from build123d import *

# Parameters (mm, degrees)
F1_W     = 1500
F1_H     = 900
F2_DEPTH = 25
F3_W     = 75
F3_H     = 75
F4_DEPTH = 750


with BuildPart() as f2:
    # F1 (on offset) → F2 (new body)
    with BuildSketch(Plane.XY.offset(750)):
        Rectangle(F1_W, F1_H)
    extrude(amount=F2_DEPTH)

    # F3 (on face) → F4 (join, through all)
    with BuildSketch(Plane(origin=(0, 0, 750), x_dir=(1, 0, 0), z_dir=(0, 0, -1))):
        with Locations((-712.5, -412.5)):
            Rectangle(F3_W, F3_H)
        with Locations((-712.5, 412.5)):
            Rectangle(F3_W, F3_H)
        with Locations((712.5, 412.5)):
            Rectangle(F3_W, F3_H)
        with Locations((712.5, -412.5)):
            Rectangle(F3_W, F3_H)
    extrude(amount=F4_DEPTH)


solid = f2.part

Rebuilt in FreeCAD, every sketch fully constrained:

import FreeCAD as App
import Part
import Sketcher

V = App.Vector


def add_polygon(sketch, points):
    """Adds a closed chain of lines whose ends are joined by coincident constraints."""
    first, n = sketch.GeometryCount, len(points)
    for a, b in zip(points, points[1:] + points[:1]):
        sketch.addGeometry(Part.LineSegment(App.Vector(*a, 0), App.Vector(*b, 0)), False)
    for i in range(n):
        sketch.addConstraint(Sketcher.Constraint("Coincident", first + i, 2, first + (i + 1) % n, 1))

doc = App.newDocument("Part")
body = doc.addObject("PartDesign::Body", "Body")

sketch1 = body.newObject("Sketcher::SketchObject", "Sketch")
sketch1.AttachmentSupport = (doc.getObject("XY_Plane"), [""])
sketch1.MapMode = "FlatFace"
sketch1.AttachmentOffset = App.Placement(V(0, 0, 750), App.Rotation())
add_polygon(sketch1, [(-750, 450), (-750, -450), (750, -450), (750, 450)])
sketch1.addConstraint(Sketcher.Constraint("Vertical", 0))
sketch1.addConstraint(Sketcher.Constraint("Horizontal", 1))
sketch1.addConstraint(Sketcher.Constraint("Vertical", 2))
sketch1.addConstraint(Sketcher.Constraint("Horizontal", 3))
sketch1.addConstraint(Sketcher.Constraint("Symmetric", 0, 2, 2, 2, -1, 1))
sketch1.addConstraint(Sketcher.Constraint("DistanceX", 1, 1, 1, 2, 1500.0))
sketch1.addConstraint(Sketcher.Constraint("DistanceY", 0, 2, 0, 1, 900.0))
pad1 = body.newObject("PartDesign::Pad", "Pad")
pad1.Profile = sketch1
pad1.Length = 25

sketch2 = body.newObject("Sketcher::SketchObject", "Sketch001")
sketch2.AttachmentSupport = (doc.getObject("XY_Plane"), [""])
sketch2.MapMode = "FlatFace"
sketch2.AttachmentOffset = App.Placement(V(0, 0, 750), App.Rotation())
add_polygon(sketch2, [(-750, 375), (-750, 450), (-675, 450), (-675, 375)])
add_polygon(sketch2, [(-750, -450), (-750, -375), (-675, -375), (-675, -450)])
add_polygon(sketch2, [(675, -450), (675, -375), (750, -375), (750, -450)])
add_polygon(sketch2, [(675, 375), (675, 450), (750, 450), (750, 375)])
sketch2.addConstraint(Sketcher.Constraint("Vertical", 0))
sketch2.addConstraint(Sketcher.Constraint("Horizontal", 1))
sketch2.addConstraint(Sketcher.Constraint("Vertical", 2))
sketch2.addConstraint(Sketcher.Constraint("Horizontal", 3))
sketch2.addConstraint(Sketcher.Constraint("Vertical", 4))
sketch2.addConstraint(Sketcher.Constraint("Horizontal", 5))
sketch2.addConstraint(Sketcher.Constraint("Vertical", 6))
sketch2.addConstraint(Sketcher.Constraint("Horizontal", 7))
sketch2.addConstraint(Sketcher.Constraint("Vertical", 8))
sketch2.addConstraint(Sketcher.Constraint("Horizontal", 9))
sketch2.addConstraint(Sketcher.Constraint("Vertical", 10))
sketch2.addConstraint(Sketcher.Constraint("Horizontal", 11))
sketch2.addConstraint(Sketcher.Constraint("Vertical", 12))
sketch2.addConstraint(Sketcher.Constraint("Horizontal", 13))
sketch2.addConstraint(Sketcher.Constraint("Vertical", 14))
sketch2.addConstraint(Sketcher.Constraint("Horizontal", 15))
sketch2.addConstraint(Sketcher.Constraint("Symmetric", 2, 2, 8, 2, -1, 1))
sketch2.addConstraint(Sketcher.Constraint("Symmetric", 0, 2, 10, 2, -1, 1))
sketch2.addConstraint(Sketcher.Constraint("Symmetric", 6, 2, 12, 2, -1, 1))
sketch2.addConstraint(Sketcher.Constraint("Symmetric", 4, 2, 14, 2, -1, 1))
sketch2.addConstraint(Sketcher.Constraint("Symmetric", 5, 2, 8, 2, -2))
sketch2.addConstraint(Sketcher.Constraint("Symmetric", 7, 2, 10, 2, -2))
sketch2.addConstraint(Sketcher.Constraint("Equal", 15, 0))
sketch2.addConstraint(Sketcher.Constraint("DistanceX", 1, 1, 1, 2, 75.0))
sketch2.addConstraint(Sketcher.Constraint("DistanceX", 0, 2, -1, 1, 750.0))
sketch2.addConstraint(Sketcher.Constraint("DistanceY", -1, 1, 0, 2, 450.0))
pad2 = body.newObject("PartDesign::Pad", "Pad001")
pad2.Profile = sketch2
pad2.Length = 750
pad2.Reversed = True

doc.recompute()
